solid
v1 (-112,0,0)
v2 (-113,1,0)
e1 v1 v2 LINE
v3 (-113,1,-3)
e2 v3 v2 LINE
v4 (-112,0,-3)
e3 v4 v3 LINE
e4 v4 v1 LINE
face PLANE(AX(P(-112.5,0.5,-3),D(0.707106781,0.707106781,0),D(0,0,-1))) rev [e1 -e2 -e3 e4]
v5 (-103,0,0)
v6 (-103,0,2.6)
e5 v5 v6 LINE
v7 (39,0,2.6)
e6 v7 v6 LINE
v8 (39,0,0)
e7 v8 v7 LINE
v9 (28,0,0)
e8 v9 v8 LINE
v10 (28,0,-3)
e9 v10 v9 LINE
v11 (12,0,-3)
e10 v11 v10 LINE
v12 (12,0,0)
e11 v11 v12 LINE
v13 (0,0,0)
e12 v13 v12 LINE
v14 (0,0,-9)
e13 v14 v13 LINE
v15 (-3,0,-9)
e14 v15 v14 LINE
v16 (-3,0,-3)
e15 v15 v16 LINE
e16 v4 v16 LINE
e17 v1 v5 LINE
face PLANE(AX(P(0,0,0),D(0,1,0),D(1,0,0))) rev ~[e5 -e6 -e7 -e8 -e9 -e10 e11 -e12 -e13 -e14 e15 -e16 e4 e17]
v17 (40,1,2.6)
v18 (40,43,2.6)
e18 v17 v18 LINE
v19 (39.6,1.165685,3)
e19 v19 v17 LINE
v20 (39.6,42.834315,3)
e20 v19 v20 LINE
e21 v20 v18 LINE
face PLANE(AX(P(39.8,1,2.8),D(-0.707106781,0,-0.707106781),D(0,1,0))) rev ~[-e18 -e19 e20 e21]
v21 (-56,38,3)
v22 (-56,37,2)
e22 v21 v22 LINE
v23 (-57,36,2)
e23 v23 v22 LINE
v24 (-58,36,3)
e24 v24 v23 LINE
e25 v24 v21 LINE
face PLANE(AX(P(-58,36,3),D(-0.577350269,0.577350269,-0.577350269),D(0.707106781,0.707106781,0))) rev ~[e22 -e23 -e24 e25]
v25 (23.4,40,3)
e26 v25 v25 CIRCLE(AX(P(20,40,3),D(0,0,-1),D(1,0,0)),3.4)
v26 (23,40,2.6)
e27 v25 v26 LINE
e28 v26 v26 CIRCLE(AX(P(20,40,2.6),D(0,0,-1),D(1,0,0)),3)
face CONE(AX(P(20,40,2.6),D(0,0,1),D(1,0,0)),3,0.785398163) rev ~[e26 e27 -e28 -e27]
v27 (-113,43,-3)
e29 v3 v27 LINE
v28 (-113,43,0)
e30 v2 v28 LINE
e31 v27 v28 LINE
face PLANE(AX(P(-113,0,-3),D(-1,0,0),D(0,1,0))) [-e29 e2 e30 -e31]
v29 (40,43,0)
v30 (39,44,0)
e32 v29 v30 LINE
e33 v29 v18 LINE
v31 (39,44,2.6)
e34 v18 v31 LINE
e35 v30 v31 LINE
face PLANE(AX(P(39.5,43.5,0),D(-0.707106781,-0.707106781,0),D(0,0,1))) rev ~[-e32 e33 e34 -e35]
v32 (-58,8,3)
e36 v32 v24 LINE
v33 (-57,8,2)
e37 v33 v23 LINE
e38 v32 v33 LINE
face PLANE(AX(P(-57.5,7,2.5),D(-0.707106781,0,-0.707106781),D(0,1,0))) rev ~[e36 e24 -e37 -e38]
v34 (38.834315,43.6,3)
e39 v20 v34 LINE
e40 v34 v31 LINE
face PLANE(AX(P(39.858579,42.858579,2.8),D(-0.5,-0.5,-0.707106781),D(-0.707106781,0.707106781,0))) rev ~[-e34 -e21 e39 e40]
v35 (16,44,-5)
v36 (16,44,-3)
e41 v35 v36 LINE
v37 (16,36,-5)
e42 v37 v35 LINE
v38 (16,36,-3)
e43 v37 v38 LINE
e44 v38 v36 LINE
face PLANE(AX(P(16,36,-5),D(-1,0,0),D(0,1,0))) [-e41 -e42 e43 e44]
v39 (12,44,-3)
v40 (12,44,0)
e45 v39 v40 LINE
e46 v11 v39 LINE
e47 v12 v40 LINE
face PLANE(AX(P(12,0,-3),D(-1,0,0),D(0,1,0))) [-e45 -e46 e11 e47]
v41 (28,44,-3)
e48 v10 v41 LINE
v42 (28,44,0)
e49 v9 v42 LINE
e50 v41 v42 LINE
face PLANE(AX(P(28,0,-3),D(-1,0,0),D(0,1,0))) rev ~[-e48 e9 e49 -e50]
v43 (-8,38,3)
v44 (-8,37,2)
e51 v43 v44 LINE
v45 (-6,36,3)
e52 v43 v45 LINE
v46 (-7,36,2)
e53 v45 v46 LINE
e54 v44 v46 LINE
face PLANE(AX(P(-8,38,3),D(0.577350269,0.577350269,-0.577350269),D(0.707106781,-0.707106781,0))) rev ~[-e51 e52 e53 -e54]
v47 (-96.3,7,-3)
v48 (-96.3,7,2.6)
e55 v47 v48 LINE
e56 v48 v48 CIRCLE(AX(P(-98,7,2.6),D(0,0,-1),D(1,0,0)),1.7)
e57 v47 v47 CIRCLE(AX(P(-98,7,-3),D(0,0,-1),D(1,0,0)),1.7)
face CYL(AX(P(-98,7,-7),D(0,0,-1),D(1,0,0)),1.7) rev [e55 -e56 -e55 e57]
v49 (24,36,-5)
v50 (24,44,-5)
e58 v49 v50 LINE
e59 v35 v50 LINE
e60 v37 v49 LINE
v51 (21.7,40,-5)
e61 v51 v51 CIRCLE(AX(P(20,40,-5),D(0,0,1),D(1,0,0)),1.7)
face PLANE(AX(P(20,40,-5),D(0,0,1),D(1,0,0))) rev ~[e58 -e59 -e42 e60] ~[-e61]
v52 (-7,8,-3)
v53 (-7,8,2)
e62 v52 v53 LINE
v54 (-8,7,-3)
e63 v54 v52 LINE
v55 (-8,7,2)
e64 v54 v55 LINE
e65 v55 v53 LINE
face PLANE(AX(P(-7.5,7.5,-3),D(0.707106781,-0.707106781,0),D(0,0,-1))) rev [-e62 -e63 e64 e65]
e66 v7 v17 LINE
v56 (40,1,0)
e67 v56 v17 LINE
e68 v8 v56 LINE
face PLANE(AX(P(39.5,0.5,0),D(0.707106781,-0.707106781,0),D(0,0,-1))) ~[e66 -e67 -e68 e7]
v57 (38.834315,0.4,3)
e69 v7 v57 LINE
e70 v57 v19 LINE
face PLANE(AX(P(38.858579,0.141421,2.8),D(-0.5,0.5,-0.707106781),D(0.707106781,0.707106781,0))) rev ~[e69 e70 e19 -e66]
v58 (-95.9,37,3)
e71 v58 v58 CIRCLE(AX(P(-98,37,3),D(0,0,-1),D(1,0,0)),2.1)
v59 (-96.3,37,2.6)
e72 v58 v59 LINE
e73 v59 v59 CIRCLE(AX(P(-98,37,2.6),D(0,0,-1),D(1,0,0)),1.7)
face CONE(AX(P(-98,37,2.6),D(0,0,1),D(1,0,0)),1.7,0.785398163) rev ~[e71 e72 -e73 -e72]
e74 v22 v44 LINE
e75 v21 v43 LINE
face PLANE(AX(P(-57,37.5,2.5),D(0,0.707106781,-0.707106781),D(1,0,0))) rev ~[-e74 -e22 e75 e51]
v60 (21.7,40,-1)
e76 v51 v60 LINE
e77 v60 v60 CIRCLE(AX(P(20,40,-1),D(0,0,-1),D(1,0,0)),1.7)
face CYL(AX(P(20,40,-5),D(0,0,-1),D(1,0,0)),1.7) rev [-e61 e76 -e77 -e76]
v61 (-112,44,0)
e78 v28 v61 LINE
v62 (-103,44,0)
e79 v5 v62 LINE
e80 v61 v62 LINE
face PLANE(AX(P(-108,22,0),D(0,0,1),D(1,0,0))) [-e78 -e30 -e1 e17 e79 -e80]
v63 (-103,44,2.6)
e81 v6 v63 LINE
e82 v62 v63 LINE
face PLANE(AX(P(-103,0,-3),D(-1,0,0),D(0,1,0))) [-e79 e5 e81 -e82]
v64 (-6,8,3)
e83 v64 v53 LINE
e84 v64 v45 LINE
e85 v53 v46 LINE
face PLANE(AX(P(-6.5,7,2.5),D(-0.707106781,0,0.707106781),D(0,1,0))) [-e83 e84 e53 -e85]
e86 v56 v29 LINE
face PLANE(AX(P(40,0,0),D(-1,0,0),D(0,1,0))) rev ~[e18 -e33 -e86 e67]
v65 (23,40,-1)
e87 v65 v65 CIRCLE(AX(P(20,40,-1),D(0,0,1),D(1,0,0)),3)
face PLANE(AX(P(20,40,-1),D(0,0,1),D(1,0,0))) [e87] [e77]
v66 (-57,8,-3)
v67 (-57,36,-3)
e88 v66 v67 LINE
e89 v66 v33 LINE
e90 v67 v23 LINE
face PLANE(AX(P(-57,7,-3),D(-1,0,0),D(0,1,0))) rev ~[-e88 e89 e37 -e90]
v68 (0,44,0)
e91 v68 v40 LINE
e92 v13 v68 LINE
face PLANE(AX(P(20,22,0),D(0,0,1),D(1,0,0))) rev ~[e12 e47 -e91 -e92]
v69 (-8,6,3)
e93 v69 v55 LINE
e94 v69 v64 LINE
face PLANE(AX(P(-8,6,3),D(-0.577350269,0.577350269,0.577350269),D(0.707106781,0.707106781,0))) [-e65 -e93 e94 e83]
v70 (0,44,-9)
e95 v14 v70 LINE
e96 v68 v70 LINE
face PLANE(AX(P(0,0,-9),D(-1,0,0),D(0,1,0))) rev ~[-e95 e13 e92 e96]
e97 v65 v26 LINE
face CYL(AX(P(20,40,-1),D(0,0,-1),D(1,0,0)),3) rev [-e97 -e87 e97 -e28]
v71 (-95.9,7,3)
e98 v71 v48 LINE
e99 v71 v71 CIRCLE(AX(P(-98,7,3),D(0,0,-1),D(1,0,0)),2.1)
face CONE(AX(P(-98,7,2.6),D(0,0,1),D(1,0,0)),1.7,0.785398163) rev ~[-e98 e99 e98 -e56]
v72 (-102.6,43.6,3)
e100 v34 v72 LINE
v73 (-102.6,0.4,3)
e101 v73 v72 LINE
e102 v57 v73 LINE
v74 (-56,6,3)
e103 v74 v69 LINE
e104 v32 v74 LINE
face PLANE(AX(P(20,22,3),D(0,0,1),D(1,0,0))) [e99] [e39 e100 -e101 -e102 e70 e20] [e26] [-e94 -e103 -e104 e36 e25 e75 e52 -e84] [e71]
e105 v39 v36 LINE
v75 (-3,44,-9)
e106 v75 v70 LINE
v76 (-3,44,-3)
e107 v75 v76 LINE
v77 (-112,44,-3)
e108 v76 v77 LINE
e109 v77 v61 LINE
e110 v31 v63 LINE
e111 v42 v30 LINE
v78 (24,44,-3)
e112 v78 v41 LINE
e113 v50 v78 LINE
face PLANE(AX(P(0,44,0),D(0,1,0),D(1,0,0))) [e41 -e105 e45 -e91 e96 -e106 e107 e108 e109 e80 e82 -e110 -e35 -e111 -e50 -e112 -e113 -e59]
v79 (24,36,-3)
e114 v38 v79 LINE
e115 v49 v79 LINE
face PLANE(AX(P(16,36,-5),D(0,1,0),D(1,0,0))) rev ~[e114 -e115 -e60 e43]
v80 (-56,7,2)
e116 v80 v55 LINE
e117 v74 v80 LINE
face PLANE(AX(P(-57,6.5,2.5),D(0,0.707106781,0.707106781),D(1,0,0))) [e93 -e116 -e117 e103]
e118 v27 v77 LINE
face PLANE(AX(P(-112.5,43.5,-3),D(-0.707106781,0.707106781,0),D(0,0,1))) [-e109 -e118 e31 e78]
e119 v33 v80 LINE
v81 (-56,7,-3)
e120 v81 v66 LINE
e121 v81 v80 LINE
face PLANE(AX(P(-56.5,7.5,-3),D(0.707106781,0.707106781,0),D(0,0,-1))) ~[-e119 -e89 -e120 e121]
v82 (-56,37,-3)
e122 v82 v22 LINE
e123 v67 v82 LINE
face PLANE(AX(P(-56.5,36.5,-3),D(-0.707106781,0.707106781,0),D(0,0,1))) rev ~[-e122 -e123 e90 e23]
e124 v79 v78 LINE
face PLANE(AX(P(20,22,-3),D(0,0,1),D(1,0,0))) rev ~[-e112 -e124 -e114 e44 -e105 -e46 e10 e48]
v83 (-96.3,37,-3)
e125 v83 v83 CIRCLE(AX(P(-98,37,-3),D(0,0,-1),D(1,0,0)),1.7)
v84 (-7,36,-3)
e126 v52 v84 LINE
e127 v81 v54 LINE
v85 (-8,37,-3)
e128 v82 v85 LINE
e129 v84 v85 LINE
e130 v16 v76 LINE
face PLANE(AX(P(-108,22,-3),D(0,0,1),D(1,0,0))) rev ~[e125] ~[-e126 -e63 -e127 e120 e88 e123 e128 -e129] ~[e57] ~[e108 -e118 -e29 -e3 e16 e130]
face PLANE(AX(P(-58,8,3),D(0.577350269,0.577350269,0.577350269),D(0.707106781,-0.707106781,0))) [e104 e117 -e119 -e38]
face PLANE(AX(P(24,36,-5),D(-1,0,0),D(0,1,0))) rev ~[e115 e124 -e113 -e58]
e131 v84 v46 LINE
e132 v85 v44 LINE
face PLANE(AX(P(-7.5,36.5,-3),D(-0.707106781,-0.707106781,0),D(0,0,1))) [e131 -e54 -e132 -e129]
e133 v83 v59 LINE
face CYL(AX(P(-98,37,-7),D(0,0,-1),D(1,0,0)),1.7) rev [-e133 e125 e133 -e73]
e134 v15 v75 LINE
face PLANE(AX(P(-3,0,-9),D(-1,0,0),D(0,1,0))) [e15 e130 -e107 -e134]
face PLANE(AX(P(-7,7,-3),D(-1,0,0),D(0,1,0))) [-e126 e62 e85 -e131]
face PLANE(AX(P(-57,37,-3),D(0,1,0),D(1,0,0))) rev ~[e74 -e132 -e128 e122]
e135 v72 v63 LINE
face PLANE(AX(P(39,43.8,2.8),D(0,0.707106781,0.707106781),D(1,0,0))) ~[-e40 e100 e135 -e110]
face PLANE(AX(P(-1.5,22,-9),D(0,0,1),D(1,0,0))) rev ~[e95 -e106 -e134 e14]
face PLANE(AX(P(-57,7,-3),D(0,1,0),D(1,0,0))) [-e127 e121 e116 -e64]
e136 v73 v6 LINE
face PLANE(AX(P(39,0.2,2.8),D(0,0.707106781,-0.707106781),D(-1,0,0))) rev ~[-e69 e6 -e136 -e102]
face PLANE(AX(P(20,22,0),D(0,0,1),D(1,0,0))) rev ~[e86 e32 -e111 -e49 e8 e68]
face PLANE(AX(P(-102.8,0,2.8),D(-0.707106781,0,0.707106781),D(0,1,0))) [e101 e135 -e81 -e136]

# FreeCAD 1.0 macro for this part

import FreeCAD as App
import Part
import Sketcher
Q = App.Units.Quantity


def edges_at(feature, points):
    """Names of the edges that pass closest to the given points."""
    edges = feature.Shape.Edges
    near = lambda p: min(range(len(edges)), key=lambda i: edges[i].distToShape(Part.Vertex(*p))[0])
    return sorted({f"Edge{near(p) + 1}" for p in points})


def add_polygon(sketch, points):
    """Adds a closed chain of lines whose ends are joined by coincident constraints."""
    first, n = sketch.GeometryCount, len(points)
    for a, b in zip(points, points[1:] + points[:1]):
        sketch.addGeometry(Part.LineSegment(App.Vector(*a, 0), App.Vector(*b, 0)), False)
    for i in range(n):
        sketch.addConstraint(Sketcher.Constraint("Coincident", first + i, 2, first + (i + 1) % n, 1))

doc = App.newDocument("Part")
body = doc.addObject("PartDesign::Body", "Body")

sketch1 = body.newObject("Sketcher::SketchObject", "Sketch")
sketch1.AttachmentSupport = (doc.getObject("XY_Plane"), [""])
sketch1.MapMode = "FlatFace"
sketch1.AttachmentOffset = App.Placement(App.Vector(0, 0, -7), App.Rotation())
sketch1.addGeometry(Part.Circle(App.Vector(-98, 37, 0), App.Vector(0, 0, 1), 1.7), False)
sketch1.addConstraint([
    Sketcher.Constraint("Diameter", 0, Q("3.4 mm")),
    Sketcher.Constraint("DistanceX", 0, 3, -1, 1, Q("98 mm")),
    Sketcher.Constraint("DistanceY", -1, 1, 0, 3, Q("37 mm")),
])
pad1 = body.newObject("PartDesign::Pad", "Pad")
pad1.Profile = sketch1
pad1.Length = 30
body2 = doc.addObject("PartDesign::Body", "Body001")
body2.AllowCompound = True

sketch2 = body2.newObject("Sketcher::SketchObject", "Sketch001")
sketch2.AttachmentSupport = (doc.getObject("XY_Plane001"), [""])
sketch2.MapMode = "FlatFace"
sketch2.AttachmentOffset = App.Placement(App.Vector(0, 0, -7), App.Rotation())
sketch2.addGeometry(Part.Circle(App.Vector(-98, 7, 0), App.Vector(0, 0, 1), 1.7), False)
sketch2.addConstraint([
    Sketcher.Constraint("Diameter", 0, Q("3.4 mm")),
    Sketcher.Constraint("DistanceX", 0, 3, -1, 1, Q("98 mm")),
    Sketcher.Constraint("DistanceY", -1, 1, 0, 3, Q("7 mm")),
])
pad2 = body2.newObject("PartDesign::Pad", "Pad001")
pad2.Profile = sketch2
pad2.Length = 30
doc.recompute()

boolean = body2.newObject("PartDesign::Boolean", "Boolean")
boolean.Type = "Fuse"
boolean.addObjects([body])
body3 = doc.addObject("PartDesign::Body", "Body002")

sketch3 = body3.newObject("Sketcher::SketchObject", "Sketch002")
sketch3.AttachmentSupport = (doc.getObject("XY_Plane002"), [""])
sketch3.MapMode = "FlatFace"
sketch3.AttachmentOffset = App.Placement(App.Vector(0, 0, -3), App.Rotation())
add_polygon(sketch3, [(-57, 37), (-57, 7), (-7, 7), (-7, 37)])
sketch3.addConstraint([
    Sketcher.Constraint("Vertical", 0),
    Sketcher.Constraint("Horizontal", 1),
    Sketcher.Constraint("Vertical", 2),
    Sketcher.Constraint("Horizontal", 3),
    Sketcher.Constraint("DistanceX", 1, 1, 1, 2, Q("50 mm")),
    Sketcher.Constraint("DistanceY", 0, 2, 0, 1, Q("30 mm")),
    Sketcher.Constraint("DistanceX", 0, 2, -1, 1, Q("57 mm")),
    Sketcher.Constraint("DistanceY", -1, 1, 0, 2, Q("7 mm")),
])
pad3 = body3.newObject("PartDesign::Pad", "Pad002")
pad3.Profile = sketch3
pad3.Length = 6
body4 = doc.addObject("PartDesign::Body", "Body003")

sketch4 = body4.newObject("Sketcher::SketchObject", "Sketch003")
sketch4.AttachmentSupport = (doc.getObject("XY_Plane003"), [""])
sketch4.MapMode = "FlatFace"
sketch4.AttachmentOffset = App.Placement(App.Vector(0, 0, -5), App.Rotation())
sketch4.addGeometry(Part.Circle(App.Vector(20, 40, 0), App.Vector(0, 0, 1), 1.7), False)
sketch4.addConstraint([
    Sketcher.Constraint("Diameter", 0, Q("3.4 mm")),
    Sketcher.Constraint("DistanceX", -1, 1, 0, 3, Q("20 mm")),
    Sketcher.Constraint("DistanceY", -1, 1, 0, 3, Q("40 mm")),
])
pad4 = body4.newObject("PartDesign::Pad", "Pad003")
pad4.Profile = sketch4
pad4.Length = 10
body5 = doc.addObject("PartDesign::Body", "Body004")

sketch5 = body5.newObject("Sketcher::SketchObject", "Sketch004")
sketch5.AttachmentSupport = (doc.getObject("XY_Plane004"), [""])
sketch5.MapMode = "FlatFace"
sketch5.AttachmentOffset = App.Placement(App.Vector(0, 0, -1), App.Rotation())
sketch5.addGeometry(Part.Circle(App.Vector(20, 40, 0), App.Vector(0, 0, 1), 3), False)
sketch5.addConstraint([
    Sketcher.Constraint("Diameter", 0, Q("6 mm")),
    Sketcher.Constraint("DistanceX", -1, 1, 0, 3, Q("20 mm")),
    Sketcher.Constraint("DistanceY", -1, 1, 0, 3, Q("40 mm")),
])
pad5 = body5.newObject("PartDesign::Pad", "Pad004")
pad5.Profile = sketch5
pad5.Length = 10
doc.recompute()

boolean2 = body5.newObject("PartDesign::Boolean", "Boolean001")
boolean2.Type = "Fuse"
boolean2.addObjects([body4])
body6 = doc.addObject("PartDesign::Body", "Body005")

sketch6 = body6.newObject("Sketcher::SketchObject", "Sketch005")
sketch6.AttachmentSupport = (doc.getObject("XY_Plane005"), [""])
sketch6.MapMode = "FlatFace"
sketch6.AttachmentOffset = App.Placement(App.Vector(0, 0, -3), App.Rotation())
add_polygon(sketch6, [(-113, 44), (-113, 0), (-103, 0), (-103, 44)])
sketch6.addConstraint([
    Sketcher.Constraint("Vertical", 0),
    Sketcher.Constraint("Horizontal", 1),
    Sketcher.Constraint("Vertical", 2),
    Sketcher.Constraint("Horizontal", 3),
    Sketcher.Constraint("PointOnObject", 0, 2, -1),
    Sketcher.Constraint("DistanceX", 1, 1, 1, 2, Q("10 mm")),
    Sketcher.Constraint("DistanceY", 0, 2, 0, 1, Q("44 mm")),
    Sketcher.Constraint("DistanceX", 0, 2, -1, 1, Q("113 mm")),
])
pad6 = body6.newObject("PartDesign::Pad", "Pad005")
pad6.Profile = sketch6
pad6.Length = 3
body7 = doc.addObject("PartDesign::Body", "Body006")

sketch7 = body7.newObject("Sketcher::SketchObject", "Sketch006")
sketch7.AttachmentSupport = (doc.getObject("XY_Plane006"), [""])
sketch7.MapMode = "FlatFace"
sketch7.AttachmentOffset = App.Placement(App.Vector(0, 0, -9), App.Rotation())
add_polygon(sketch7, [(-3, 44), (-3, 0), (0, 0), (0, 44)])
sketch7.addConstraint([
    Sketcher.Constraint("Vertical", 0),
    Sketcher.Constraint("Horizontal", 1),
    Sketcher.Constraint("Vertical", 2),
    Sketcher.Constraint("Horizontal", 3),
    Sketcher.Constraint("Coincident", 1, 2, -1, 1),
    Sketcher.Constraint("DistanceX", 1, 1, 1, 2, Q("3 mm")),
    Sketcher.Constraint("DistanceY", 0, 2, 0, 1, Q("44 mm")),
])
pad7 = body7.newObject("PartDesign::Pad", "Pad006")
pad7.Profile = sketch7
pad7.Length = 6
body8 = doc.addObject("PartDesign::Body", "Body007")

sketch8 = body8.newObject("Sketcher::SketchObject", "Sketch007")
sketch8.AttachmentSupport = (doc.getObject("XY_Plane007"), [""])
sketch8.MapMode = "FlatFace"
sketch8.AttachmentOffset = App.Placement(App.Vector(0, 0, -3), App.Rotation())
add_polygon(sketch8, [(12, 44), (12, 0), (28, 0), (28, 44)])
sketch8.addConstraint([
    Sketcher.Constraint("Vertical", 0),
    Sketcher.Constraint("Horizontal", 1),
    Sketcher.Constraint("Vertical", 2),
    Sketcher.Constraint("Horizontal", 3),
    Sketcher.Constraint("PointOnObject", 0, 2, -1),
    Sketcher.Constraint("DistanceX", 1, 1, 1, 2, Q("16 mm")),
    Sketcher.Constraint("DistanceY", 0, 2, 0, 1, Q("44 mm")),
    Sketcher.Constraint("DistanceX", -1, 1, 0, 2, Q("12 mm")),
])
pad8 = body8.newObject("PartDesign::Pad", "Pad007")
pad8.Profile = sketch8
pad8.Length = 3
body9 = doc.addObject("PartDesign::Body", "Body008")

sketch9 = body9.newObject("Sketcher::SketchObject", "Sketch008")
sketch9.AttachmentSupport = (doc.getObject("XY_Plane008"), [""])
sketch9.MapMode = "FlatFace"
add_polygon(sketch9, [(0, 44), (0, 0), (40, 0), (40, 44)])
sketch9.addConstraint([
    Sketcher.Constraint("Vertical", 0),
    Sketcher.Constraint("Horizontal", 1),
    Sketcher.Constraint("Vertical", 2),
    Sketcher.Constraint("Horizontal", 3),
    Sketcher.Constraint("Coincident", 0, 2, -1, 1),
    Sketcher.Constraint("DistanceX", 1, 1, 1, 2, Q("40 mm")),
    Sketcher.Constraint("DistanceY", 0, 2, 0, 1, Q("44 mm")),
])
pad9 = body9.newObject("PartDesign::Pad", "Pad008")
pad9.Profile = sketch9
pad9.Length = 3
body10 = doc.addObject("PartDesign::Body", "Body009")

sketch10 = body10.newObject("Sketcher::SketchObject", "Sketch009")
sketch10.AttachmentSupport = (doc.getObject("XY_Plane009"), [""])
sketch10.MapMode = "FlatFace"
sketch10.AttachmentOffset = App.Placement(App.Vector(0, 0, -5), App.Rotation())
add_polygon(sketch10, [(16, 44), (16, 36), (24, 36), (24, 44)])
sketch10.addConstraint([
    Sketcher.Constraint("Vertical", 0),
    Sketcher.Constraint("Horizontal", 1),
    Sketcher.Constraint("Vertical", 2),
    Sketcher.Constraint("Horizontal", 3),
    Sketcher.Constraint("Equal", 3, 0),
    Sketcher.Constraint("DistanceX", 1, 1, 1, 2, Q("8 mm")),
    Sketcher.Constraint("DistanceX", -1, 1, 0, 2, Q("16 mm")),
    Sketcher.Constraint("DistanceY", -1, 1, 0, 2, Q("36 mm")),
])
pad10 = body10.newObject("PartDesign::Pad", "Pad009")
pad10.Profile = sketch10
pad10.Length = 3
doc.recompute()

boolean3 = body10.newObject("PartDesign::Boolean", "Boolean002")
boolean3.Type = "Fuse"
boolean3.addObjects([body8])
doc.recompute()

boolean4 = body10.newObject("PartDesign::Boolean", "Boolean003")
boolean4.Type = "Fuse"
boolean4.addObjects([body9])
body11 = doc.addObject("PartDesign::Body", "Body010")

sketch11 = body11.newObject("Sketcher::SketchObject", "Sketch010")
sketch11.AttachmentSupport = (doc.getObject("XY_Plane010"), [""])
sketch11.MapMode = "FlatFace"
sketch11.AttachmentOffset = App.Placement(App.Vector(0, 0, -3), App.Rotation())
add_polygon(sketch11, [(-103, 44), (-103, 0), (0, 0), (0, 44)])
sketch11.addConstraint([
    Sketcher.Constraint("Vertical", 0),
    Sketcher.Constraint("Horizontal", 1),
    Sketcher.Constraint("Vertical", 2),
    Sketcher.Constraint("Horizontal", 3),
    Sketcher.Constraint("Coincident", 1, 2, -1, 1),
    Sketcher.Constraint("DistanceX", 1, 1, 1, 2, Q("103 mm")),
    Sketcher.Constraint("DistanceY", 0, 2, 0, 1, Q("44 mm")),
])
pad11 = body11.newObject("PartDesign::Pad", "Pad010")
pad11.Profile = sketch11
pad11.Length = 6
doc.recompute()

boolean5 = body11.newObject("PartDesign::Boolean", "Boolean004")
boolean5.Type = "Fuse"
boolean5.addObjects([body6])
doc.recompute()

boolean6 = body11.newObject("PartDesign::Boolean", "Boolean005")
boolean6.Type = "Fuse"
boolean6.addObjects([body7])
doc.recompute()

boolean7 = body11.newObject("PartDesign::Boolean", "Boolean006")
boolean7.Type = "Fuse"
boolean7.addObjects([body10])
doc.recompute()

boolean8 = body11.newObject("PartDesign::Boolean", "Boolean007")
boolean8.Type = "Cut"
boolean8.addObjects([body5])
doc.recompute()

boolean9 = body11.newObject("PartDesign::Boolean", "Boolean008")
boolean9.Type = "Cut"
boolean9.addObjects([body3])
doc.recompute()

boolean10 = body11.newObject("PartDesign::Boolean", "Boolean009")
boolean10.Type = "Cut"
boolean10.addObjects([body2])
doc.recompute()

chamfer = body11.newObject("PartDesign::Chamfer", "Chamfer")
chamfer.Base = (boolean10, edges_at(boolean10, [
    (-57, 22, 3),
    (-32, 37, 3),
    (-32, 7, 3),
    (-7, 22, 3),
    (40, 0, 1.5),
    (-113, 0, -1.5),
    (-57, 7, 0),
    (-57, 37, 0),
    (-7, 37, 0),
    (-7, 7, 0),
    (40, 44, 1.5),
    (-113, 44, -1.5),
]))
chamfer.Size = 1
doc.recompute()

chamfer2 = body11.newObject("PartDesign::Chamfer", "Chamfer001")
chamfer2.Base = (chamfer, edges_at(chamfer, [
    (-103, 22, 3),
    (-32, 44, 3),
    (-32, 0, 3),
    (-99.7, 37, 3),
    (-99.7, 7, 3),
    (-32, 0, 3),
    (39.5, 0.5, 3),
    (40, 22, 3),
    (-32, 44, 3),
    (39.5, 43.5, 3),
    (17, 40, 3),
]))
chamfer2.Size = 0.4

doc.recompute()
